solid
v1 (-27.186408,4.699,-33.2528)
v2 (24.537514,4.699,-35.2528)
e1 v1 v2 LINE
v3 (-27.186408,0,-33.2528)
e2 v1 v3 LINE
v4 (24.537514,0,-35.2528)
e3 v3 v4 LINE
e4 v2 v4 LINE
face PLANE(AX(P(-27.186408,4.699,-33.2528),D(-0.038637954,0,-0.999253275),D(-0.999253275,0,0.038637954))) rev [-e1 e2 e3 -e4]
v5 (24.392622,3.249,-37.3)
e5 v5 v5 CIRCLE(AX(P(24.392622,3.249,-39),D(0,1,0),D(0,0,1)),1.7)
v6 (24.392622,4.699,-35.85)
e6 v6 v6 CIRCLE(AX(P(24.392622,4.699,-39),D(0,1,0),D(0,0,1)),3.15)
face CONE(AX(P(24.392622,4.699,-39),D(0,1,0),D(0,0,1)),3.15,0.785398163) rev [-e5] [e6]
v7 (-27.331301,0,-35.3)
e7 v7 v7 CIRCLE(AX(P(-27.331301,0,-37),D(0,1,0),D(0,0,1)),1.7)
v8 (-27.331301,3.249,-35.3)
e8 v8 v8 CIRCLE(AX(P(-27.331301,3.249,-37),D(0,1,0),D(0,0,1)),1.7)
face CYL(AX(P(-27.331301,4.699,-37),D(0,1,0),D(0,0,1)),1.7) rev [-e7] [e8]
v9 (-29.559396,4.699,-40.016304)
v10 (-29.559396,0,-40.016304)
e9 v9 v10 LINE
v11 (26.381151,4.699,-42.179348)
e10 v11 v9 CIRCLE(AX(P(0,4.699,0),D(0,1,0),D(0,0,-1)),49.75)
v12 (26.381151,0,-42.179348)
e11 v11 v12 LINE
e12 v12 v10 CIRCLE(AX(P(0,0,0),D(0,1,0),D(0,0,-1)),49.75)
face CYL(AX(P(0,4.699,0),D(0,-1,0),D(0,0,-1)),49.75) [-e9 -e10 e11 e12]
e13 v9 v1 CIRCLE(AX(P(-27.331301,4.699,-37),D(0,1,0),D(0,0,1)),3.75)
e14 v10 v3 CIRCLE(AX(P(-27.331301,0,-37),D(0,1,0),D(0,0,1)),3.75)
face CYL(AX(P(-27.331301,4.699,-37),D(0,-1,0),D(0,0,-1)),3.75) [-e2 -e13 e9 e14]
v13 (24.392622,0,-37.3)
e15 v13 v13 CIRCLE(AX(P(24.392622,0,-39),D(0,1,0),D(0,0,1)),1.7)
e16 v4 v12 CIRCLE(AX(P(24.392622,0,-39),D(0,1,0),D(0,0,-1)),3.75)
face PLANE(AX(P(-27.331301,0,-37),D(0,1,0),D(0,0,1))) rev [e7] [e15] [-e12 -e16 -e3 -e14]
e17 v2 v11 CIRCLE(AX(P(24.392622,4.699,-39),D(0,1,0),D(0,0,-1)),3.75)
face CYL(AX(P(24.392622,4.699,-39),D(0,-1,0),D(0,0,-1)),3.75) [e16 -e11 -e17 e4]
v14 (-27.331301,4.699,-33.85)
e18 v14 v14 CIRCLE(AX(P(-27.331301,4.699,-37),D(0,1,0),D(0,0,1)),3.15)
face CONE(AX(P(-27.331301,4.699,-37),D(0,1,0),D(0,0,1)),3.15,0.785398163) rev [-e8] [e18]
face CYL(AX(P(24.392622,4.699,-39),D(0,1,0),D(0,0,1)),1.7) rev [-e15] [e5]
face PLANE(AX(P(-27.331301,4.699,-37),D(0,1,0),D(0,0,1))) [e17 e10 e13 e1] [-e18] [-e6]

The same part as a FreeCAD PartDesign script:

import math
import FreeCAD as App
import Part
import Sketcher

V = App.Vector
Q = App.Units.Quantity

doc = App.newDocument("Part")
body = doc.addObject("PartDesign::Body", "Body")

sketch1 = doc.addObject("Sketcher::SketchObject", "Sketch")
body.addObject(sketch1)
sketch1.AttachmentSupport = (doc.XZ_Plane, [""])
sketch1.MapMode = "FlatFace"
sketch1.addGeometry(Part.LineSegment(V(-27.186408, -33.2528, 0), V(24.537514, -35.2528, 0)), False)
sketch1.addGeometry(Part.ArcOfCircle(Part.Circle(V(24.392622, -39, 0), V(0, 0, 1), 3.75), math.radians(-57.976004), math.radians(87.785657)), False)
sketch1.addGeometry(Part.ArcOfCircle(Part.Circle(V(0, 0, 0), V(0, 0, 1), 49.75), math.radians(-126.452682), math.radians(-57.976004)), False)
sketch1.addGeometry(Part.ArcOfCircle(Part.Circle(V(-27.331301, -37, 0), V(0, 0, 1), 3.75), math.radians(87.785657), math.radians(233.547318)), False)
sketch1.addConstraint(Sketcher.Constraint("Tangent", 0, 2, 1, 2))
sketch1.addConstraint(Sketcher.Constraint("Tangent", 1, 1, 2, 2))
sketch1.addConstraint(Sketcher.Constraint("Tangent", 2, 1, 3, 2))
sketch1.addConstraint(Sketcher.Constraint("Tangent", 3, 1, 0, 1))
sketch1.addConstraint(Sketcher.Constraint("Coincident", 2, 3, -1, 1))
sketch1.addConstraint(Sketcher.Constraint("Equal", 1, 3))
sketch1.addConstraint(Sketcher.Constraint("Radius", 1, Q("3.75 mm")))
sketch1.addConstraint(Sketcher.Constraint("Radius", 2, Q("49.75 mm")))
sketch1.addConstraint(Sketcher.Constraint("DistanceY", 1, 3, -1, 1, Q("39 mm")))
sketch1.addConstraint(Sketcher.Constraint("DistanceY", 3, 3, -1, 1, Q("37 mm")))
pad1 = doc.addObject("PartDesign::Pad", "Pad")
body.addObject(pad1)
pad1.Profile = sketch1
pad1.Length = 4.699
pad1.Reversed = True

sketch2 = doc.addObject("Sketcher::SketchObject", "Sketch001")
body.addObject(sketch2)
sketch2.AttachmentSupport = (doc.XZ_Plane, [""])
sketch2.MapMode = "FlatFace"
sketch2.AttachmentOffset = App.Placement(V(0, 0, -4.699), App.Rotation())
sketch2.addGeometry(Part.Circle(V(-27.331301, -37, 0), V(0, 0, 1), 1.7), False)
sketch2.addGeometry(Part.Circle(V(24.392622, -39, 0), V(0, 0, 1), 1.7), False)
sketch2.addConstraint(Sketcher.Constraint("Equal", 0, 1))
sketch2.addConstraint(Sketcher.Constraint("Diameter", 0, Q("3.4 mm")))
sketch2.addConstraint(Sketcher.Constraint("DistanceY", 0, 3, -1, 1, Q("37 mm")))
sketch2.addConstraint(Sketcher.Constraint("DistanceY", 1, 3, -1, 1, Q("39 mm")))
sketch2.addConstraint(Sketcher.Constraint("DistanceX", 0, 3, -1, 1, Q("27.331301 mm")))
sketch2.addConstraint(Sketcher.Constraint("DistanceX", -1, 1, 1, 3, Q("24.392622 mm")))
doc.recompute()
hole = doc.addObject("PartDesign::Hole", "Hole")
body.addObject(hole)
hole.Profile = sketch2
hole.ThreadType = "None"
hole.Diameter = 3.4
hole.DepthType = "ThroughAll"
hole.HoleCutType = "Countersink"
hole.HoleCutDiameter = 6.3
hole.HoleCutCountersinkAngle = 90
hole.Reversed = True

doc.recompute()
